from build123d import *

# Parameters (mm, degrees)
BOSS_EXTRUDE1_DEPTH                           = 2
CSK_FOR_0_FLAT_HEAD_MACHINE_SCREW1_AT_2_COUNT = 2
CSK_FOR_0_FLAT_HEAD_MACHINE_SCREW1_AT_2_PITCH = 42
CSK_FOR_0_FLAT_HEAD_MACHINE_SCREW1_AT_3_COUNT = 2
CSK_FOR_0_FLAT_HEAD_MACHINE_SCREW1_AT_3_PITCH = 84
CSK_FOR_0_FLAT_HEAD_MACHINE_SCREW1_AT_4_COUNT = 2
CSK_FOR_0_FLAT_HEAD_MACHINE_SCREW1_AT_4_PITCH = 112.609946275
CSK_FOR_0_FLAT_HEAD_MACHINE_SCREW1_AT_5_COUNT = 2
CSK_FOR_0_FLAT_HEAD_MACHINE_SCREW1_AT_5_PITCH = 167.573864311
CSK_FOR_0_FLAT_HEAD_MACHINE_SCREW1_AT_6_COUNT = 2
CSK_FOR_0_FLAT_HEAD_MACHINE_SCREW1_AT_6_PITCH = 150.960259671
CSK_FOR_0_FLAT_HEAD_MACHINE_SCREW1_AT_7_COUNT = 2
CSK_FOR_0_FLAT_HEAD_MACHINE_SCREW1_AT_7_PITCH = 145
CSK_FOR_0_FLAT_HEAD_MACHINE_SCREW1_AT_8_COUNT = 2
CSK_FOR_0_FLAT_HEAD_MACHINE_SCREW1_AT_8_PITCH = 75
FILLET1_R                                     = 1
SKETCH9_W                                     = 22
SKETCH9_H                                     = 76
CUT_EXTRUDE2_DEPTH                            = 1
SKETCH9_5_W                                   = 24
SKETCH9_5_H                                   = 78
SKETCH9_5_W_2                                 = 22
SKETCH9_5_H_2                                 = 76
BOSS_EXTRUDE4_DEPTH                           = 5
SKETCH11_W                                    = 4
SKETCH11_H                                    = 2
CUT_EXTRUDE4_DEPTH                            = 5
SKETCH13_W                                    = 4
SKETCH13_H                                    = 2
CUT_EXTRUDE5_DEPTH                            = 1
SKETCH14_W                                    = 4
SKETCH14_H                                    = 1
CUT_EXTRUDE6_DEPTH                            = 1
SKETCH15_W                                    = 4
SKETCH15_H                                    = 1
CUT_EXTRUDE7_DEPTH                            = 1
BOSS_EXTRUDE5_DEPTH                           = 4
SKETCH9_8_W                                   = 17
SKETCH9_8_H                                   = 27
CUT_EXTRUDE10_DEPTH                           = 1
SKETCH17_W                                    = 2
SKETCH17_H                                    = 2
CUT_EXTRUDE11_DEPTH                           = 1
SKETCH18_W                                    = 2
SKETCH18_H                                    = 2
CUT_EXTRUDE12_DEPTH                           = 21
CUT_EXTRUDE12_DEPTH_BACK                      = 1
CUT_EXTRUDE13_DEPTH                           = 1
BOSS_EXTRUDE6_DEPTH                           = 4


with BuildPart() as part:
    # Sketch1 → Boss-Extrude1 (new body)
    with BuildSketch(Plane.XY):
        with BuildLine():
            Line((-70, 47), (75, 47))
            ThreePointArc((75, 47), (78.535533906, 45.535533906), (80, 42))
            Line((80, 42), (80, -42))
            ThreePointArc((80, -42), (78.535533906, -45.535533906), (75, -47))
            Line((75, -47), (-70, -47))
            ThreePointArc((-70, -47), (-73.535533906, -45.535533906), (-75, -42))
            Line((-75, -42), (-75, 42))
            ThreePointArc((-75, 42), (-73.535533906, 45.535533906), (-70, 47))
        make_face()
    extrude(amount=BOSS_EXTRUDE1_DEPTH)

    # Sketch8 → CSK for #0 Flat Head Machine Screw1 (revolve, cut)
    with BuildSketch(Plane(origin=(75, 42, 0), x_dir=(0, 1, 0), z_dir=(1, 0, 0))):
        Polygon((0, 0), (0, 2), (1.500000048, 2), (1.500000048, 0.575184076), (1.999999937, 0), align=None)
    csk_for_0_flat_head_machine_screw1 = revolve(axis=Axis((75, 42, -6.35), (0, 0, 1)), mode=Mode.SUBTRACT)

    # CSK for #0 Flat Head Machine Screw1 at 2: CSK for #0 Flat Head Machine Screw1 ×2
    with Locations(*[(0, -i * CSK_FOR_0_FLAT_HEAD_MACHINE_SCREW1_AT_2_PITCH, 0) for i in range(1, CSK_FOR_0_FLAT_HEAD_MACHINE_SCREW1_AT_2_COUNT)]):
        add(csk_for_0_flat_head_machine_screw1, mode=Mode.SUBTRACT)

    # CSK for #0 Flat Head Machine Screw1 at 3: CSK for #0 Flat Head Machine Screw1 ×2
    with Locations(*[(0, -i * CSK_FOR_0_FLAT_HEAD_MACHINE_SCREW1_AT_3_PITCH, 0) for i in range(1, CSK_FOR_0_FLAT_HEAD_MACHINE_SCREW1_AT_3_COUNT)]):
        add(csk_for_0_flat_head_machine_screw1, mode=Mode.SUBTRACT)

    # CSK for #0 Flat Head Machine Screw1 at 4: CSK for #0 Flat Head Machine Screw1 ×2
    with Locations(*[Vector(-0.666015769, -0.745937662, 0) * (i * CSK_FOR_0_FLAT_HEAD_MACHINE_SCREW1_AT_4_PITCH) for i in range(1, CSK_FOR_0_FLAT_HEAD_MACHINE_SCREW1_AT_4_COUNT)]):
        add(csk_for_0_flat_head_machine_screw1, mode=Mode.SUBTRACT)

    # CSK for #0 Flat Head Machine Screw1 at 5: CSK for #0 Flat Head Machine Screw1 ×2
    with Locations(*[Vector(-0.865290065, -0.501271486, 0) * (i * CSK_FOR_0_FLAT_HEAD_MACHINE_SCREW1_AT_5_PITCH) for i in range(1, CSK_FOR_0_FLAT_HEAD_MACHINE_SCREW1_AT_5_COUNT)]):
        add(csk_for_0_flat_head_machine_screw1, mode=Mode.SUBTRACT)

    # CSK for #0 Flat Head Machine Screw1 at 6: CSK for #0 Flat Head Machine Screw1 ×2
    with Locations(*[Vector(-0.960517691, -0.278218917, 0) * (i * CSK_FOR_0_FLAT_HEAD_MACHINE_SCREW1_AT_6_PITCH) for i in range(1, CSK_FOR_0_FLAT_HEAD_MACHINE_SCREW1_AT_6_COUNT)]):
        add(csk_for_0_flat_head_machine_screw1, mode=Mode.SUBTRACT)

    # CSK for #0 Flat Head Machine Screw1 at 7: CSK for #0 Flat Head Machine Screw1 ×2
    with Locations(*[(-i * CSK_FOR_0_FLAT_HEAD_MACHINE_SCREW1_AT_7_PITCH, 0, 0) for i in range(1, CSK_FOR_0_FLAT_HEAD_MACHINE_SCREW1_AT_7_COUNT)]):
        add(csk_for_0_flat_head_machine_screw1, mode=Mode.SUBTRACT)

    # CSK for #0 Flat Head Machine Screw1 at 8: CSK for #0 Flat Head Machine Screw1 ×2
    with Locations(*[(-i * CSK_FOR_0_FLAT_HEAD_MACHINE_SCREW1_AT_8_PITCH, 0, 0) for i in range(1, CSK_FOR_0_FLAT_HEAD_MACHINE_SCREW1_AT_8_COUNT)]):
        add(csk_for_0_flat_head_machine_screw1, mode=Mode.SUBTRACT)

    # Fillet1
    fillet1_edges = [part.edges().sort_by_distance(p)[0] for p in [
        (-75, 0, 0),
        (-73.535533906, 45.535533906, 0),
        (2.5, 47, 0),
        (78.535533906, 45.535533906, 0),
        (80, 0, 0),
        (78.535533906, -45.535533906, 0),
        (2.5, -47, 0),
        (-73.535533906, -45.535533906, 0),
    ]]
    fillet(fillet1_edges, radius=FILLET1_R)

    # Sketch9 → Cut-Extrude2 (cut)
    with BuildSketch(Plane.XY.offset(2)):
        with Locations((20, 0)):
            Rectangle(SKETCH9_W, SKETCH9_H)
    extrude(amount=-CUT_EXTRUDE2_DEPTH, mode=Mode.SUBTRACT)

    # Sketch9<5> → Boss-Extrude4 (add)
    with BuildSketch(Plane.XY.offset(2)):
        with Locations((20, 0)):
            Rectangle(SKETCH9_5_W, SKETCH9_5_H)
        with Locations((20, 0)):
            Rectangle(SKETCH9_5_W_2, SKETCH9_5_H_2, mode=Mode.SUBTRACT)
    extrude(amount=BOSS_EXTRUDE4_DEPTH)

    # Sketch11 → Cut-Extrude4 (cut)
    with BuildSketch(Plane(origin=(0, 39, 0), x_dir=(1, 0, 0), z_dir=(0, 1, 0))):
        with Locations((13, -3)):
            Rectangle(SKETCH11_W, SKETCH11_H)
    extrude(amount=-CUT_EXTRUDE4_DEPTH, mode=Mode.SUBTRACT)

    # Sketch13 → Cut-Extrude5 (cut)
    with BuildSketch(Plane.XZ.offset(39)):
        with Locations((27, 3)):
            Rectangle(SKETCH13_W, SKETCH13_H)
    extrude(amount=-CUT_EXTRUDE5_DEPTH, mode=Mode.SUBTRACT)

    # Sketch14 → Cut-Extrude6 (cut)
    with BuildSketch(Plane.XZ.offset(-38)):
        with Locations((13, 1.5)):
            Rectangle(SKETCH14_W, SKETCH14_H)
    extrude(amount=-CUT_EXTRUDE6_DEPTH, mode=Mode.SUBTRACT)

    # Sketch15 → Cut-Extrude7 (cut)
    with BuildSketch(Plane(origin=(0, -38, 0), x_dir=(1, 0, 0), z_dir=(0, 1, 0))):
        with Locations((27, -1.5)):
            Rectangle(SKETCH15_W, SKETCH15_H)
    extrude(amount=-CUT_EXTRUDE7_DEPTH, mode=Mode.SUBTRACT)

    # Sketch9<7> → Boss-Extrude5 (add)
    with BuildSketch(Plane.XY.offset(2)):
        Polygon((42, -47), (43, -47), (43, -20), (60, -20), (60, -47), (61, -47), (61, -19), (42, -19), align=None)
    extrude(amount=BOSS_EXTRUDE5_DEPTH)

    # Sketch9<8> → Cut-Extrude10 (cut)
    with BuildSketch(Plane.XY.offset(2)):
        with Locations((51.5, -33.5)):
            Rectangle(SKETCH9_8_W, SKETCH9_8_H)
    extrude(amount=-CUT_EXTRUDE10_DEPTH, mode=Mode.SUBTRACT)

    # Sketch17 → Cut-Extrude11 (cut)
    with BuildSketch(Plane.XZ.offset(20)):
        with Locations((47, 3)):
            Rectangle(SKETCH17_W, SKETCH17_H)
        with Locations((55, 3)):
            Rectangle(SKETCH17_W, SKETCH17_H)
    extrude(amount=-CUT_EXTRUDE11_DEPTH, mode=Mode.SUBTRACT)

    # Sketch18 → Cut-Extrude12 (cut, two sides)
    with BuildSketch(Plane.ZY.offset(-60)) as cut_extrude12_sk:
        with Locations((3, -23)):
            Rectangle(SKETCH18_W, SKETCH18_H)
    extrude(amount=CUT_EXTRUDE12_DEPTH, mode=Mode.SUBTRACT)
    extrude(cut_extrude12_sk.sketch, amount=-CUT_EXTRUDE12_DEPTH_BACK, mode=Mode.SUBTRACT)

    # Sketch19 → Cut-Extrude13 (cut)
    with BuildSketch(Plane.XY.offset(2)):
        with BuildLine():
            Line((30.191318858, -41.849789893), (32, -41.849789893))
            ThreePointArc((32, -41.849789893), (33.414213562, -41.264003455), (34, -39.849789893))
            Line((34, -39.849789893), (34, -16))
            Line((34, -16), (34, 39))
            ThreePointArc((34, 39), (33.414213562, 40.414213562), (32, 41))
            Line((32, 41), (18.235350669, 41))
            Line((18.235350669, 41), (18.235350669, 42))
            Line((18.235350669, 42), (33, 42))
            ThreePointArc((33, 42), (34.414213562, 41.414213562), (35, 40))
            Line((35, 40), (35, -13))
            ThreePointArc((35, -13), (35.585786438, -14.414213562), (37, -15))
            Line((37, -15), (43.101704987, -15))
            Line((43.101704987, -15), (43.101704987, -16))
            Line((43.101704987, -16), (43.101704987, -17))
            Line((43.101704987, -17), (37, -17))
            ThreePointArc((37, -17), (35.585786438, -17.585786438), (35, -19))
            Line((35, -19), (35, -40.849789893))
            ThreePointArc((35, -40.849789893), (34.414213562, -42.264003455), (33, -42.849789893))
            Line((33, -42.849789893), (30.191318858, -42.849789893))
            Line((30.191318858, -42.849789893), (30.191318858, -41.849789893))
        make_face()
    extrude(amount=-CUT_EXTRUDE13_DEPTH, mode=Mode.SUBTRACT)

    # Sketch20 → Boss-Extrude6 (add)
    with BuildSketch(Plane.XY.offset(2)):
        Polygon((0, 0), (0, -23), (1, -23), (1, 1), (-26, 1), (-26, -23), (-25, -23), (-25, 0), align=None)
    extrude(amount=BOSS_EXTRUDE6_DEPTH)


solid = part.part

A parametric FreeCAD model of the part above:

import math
import FreeCAD as App
import Part
import Sketcher

V = App.Vector
Q = App.Units.Quantity


def edges_at(feature, points):
    """Names of the edges that pass closest to the given points."""
    edges = feature.Shape.Edges
    near = lambda p: min(range(len(edges)), key=lambda i: edges[i].distToShape(Part.Vertex(*p))[0])
    return sorted({f"Edge{near(p) + 1}" for p in points})

doc = App.newDocument("Part")
params = doc.addObject("Spreadsheet::Sheet", "Params")
for row, (alias, value) in enumerate([
    ("sketch1_radius", "5 mm"),
    ("sketch1_width", "145 mm"),
    ("sketch1_height", "84 mm"),
    ("pad1_length", "2 mm"),
    ("sketch2_width", "2 mm"),
    ("sketch2_width2", "1.5 mm"),
    ("groove_angle", "360 deg"),
    ("linearpattern_pitch", "42 mm"),
    ("linearpattern2_pitch", "84 mm"),
    ("linearpattern3_pitch", "112.609946 mm"),
    ("linearpattern4_pitch", "167.573864 mm"),
    ("linearpattern5_pitch", "150.96026 mm"),
    ("linearpattern6_pitch", "145 mm"),
    ("linearpattern7_pitch", "75 mm"),
    ("fillet_radius", "1 mm"),
    ("sketch3_width", "22 mm"),
    ("sketch3_height", "76 mm"),
    ("pocket1_length", "1 mm"),
    ("sketch4_width", "24 mm"),
    ("sketch4_width2", "22 mm"),
    ("sketch4_height", "78 mm"),
    ("sketch4_height2", "76 mm"),
    ("pad2_length", "5 mm"),
    ("sketch5_width", "4 mm"),
    ("sketch5_height", "2 mm"),
    ("pocket2_length", "5 mm"),
    ("sketch6_width", "4 mm"),
    ("sketch6_height", "2 mm"),
    ("pocket3_length", "1 mm"),
    ("sketch7_width", "4 mm"),
    ("sketch7_height", "1 mm"),
    ("pocket4_length", "1 mm"),
    ("sketch8_width", "4 mm"),
    ("sketch8_height", "1 mm"),
    ("pocket5_length", "1 mm"),
    ("sketch9_width", "1 mm"),
    ("sketch9_width2", "17 mm"),
    ("sketch9_height", "27 mm"),
    ("sketch9_height2", "28 mm"),
    ("pad3_length", "4 mm"),
    ("sketch10_width", "17 mm"),
    ("sketch10_height", "27 mm"),
    ("pocket6_length", "1 mm"),
    ("sketch11_width", "2 mm"),
    ("pocket7_length", "1 mm"),
    ("sketch12_width", "2 mm"),
    ("pocket8_length", "21 mm"),
    ("pocket8_length2", "1 mm"),
    ("sketch13_radius", "2 mm"),
    ("sketch13_height", "1 mm"),
    ("sketch13_height2", "2 mm"),
    ("sketch13_height3", "53 mm"),
    ("pocket9_length", "1 mm"),
    ("sketch14_width", "1 mm"),
    ("sketch14_width2", "27 mm"),
    ("sketch14_height", "23 mm"),
    ("sketch14_height2", "24 mm"),
    ("pad4_length", "4 mm"),
], start=1):
    params.set(f"A{row}", alias)
    params.set(f"B{row}", "=" + value)
    params.setAlias(f"B{row}", alias)

body = doc.addObject("PartDesign::Body", "Body")

# Sketch on XY plane
sketch1 = body.newObject("Sketcher::SketchObject", "Sketch")
sketch1.AttachmentSupport = (doc.getObject("XY_Plane"), [""])
sketch1.MapMode = "FlatFace"
sketch1.addGeometry([
    Part.LineSegment(V(75, 47, 0), V(-70, 47, 0)),  # 0
    Part.ArcOfCircle(Part.Circle(V(-70, 42, 0), V(0, 0, 1), 5), math.radians(90), math.radians(180)),  # 1
    Part.LineSegment(V(-75, 42, 0), V(-75, -42, 0)),  # 2
    Part.ArcOfCircle(Part.Circle(V(-70, -42, 0), V(0, 0, 1), 5), math.radians(180), math.radians(270)),  # 3
    Part.LineSegment(V(-70, -47, 0), V(75, -47, 0)),  # 4
    Part.ArcOfCircle(Part.Circle(V(75, -42, 0), V(0, 0, 1), 5), math.radians(-90), math.radians(0)),  # 5
    Part.LineSegment(V(80, -42, 0), V(80, 42, 0)),  # 6
    Part.ArcOfCircle(Part.Circle(V(75, 42, 0), V(0, 0, 1), 5), math.radians(0), math.radians(90)),  # 7
], False)
sketch1.addConstraint([
    Sketcher.Constraint("Tangent", 0, 2, 1, 1),
    Sketcher.Constraint("Tangent", 1, 2, 2, 1),
    Sketcher.Constraint("Tangent", 2, 2, 3, 1),
    Sketcher.Constraint("Tangent", 3, 2, 4, 1),
    Sketcher.Constraint("Tangent", 4, 2, 5, 1),
    Sketcher.Constraint("Tangent", 5, 2, 6, 1),
    Sketcher.Constraint("Tangent", 6, 2, 7, 1),
    Sketcher.Constraint("Tangent", 7, 2, 0, 1),
    Sketcher.Constraint("Horizontal", 0),
    Sketcher.Constraint("Vertical", 2),
    Sketcher.Constraint("Horizontal", 4),
    Sketcher.Constraint("Vertical", 6),
    Sketcher.Constraint("Equal", 1, 3),
    Sketcher.Constraint("Equal", 3, 5),
    Sketcher.Constraint("Equal", 5, 7),
    Sketcher.Constraint("Radius", 1, 5.0),
    Sketcher.Constraint("DistanceX", 0, 2, 0, 1, 145.0),
    Sketcher.Constraint("DistanceY", 2, 2, 2, 1, 84.0),
    Sketcher.Constraint("DistanceX", 1, 3, -1, 1, 70.0),
    Sketcher.Constraint("DistanceY", -1, 1, 1, 3, 42.0),
])
sketch1.setExpression("Constraints[15]", "Params.sketch1_radius")
sketch1.setExpression("Constraints[16]", "Params.sketch1_width")
sketch1.setExpression("Constraints[17]", "Params.sketch1_height")
pad1 = body.newObject("PartDesign::Pad", "Pad")
pad1.Profile = sketch1
pad1.setExpression("Length", "Params.pad1_length")

# Sketch on YZ plane
sketch2 = body.newObject("Sketcher::SketchObject", "Sketch001")
sketch2.AttachmentSupport = (doc.getObject("YZ_Plane"), [""])
sketch2.MapMode = "FlatFace"
sketch2.AttachmentOffset = App.Placement(V(0, 0, 75), App.Rotation())
sketch2.addGeometry([
    Part.LineSegment(V(42, 2, 0), V(42, 0, 0)),  # 0
    Part.LineSegment(V(42, 0, 0), V(44, 0, 0)),  # 1
    Part.LineSegment(V(44, 0, 0), V(43.5, 0.6, 0)),  # 2
    Part.LineSegment(V(43.5, 0.6, 0), V(43.5, 2, 0)),  # 3
    Part.LineSegment(V(43.5, 2, 0), V(42, 2, 0)),  # 4
], False)
sketch2.addGeometry(Part.LineSegment(V(42, 0, 0), V(42, 2, 0)), True)  # axis
sketch2.addConstraint([
    Sketcher.Constraint("Coincident", 0, 2, 1, 1),
    Sketcher.Constraint("Coincident", 1, 2, 2, 1),
    Sketcher.Constraint("Coincident", 2, 2, 3, 1),
    Sketcher.Constraint("Coincident", 3, 2, 4, 1),
    Sketcher.Constraint("Coincident", 4, 2, 0, 1),
    Sketcher.Constraint("Vertical", 0),
    Sketcher.Constraint("Horizontal", 1),
    Sketcher.Constraint("Vertical", 3),
    Sketcher.Constraint("Horizontal", 4),
    Sketcher.Constraint("Vertical", 5),
    Sketcher.Constraint("Coincident", 5, 1, 0, 2),
    Sketcher.Constraint("PointOnObject", 0, 2, -1),
    Sketcher.Constraint("Horizontal", 3, 2, 5, 2),
    Sketcher.Constraint("Equal", 1, 0),
    Sketcher.Constraint("DistanceX", 1, 1, 1, 2, 2.0),
    Sketcher.Constraint("Angle", 2, Q("131 deg")),
    Sketcher.Constraint("DistanceX", 4, 2, 4, 1, 1.5),
    Sketcher.Constraint("DistanceX", -1, 1, 0, 2, 42.0),
])
sketch2.setExpression("Constraints[14]", "Params.sketch2_width")
sketch2.setExpression("Constraints[16]", "Params.sketch2_width2")
groove = body.newObject("PartDesign::Groove", "Groove")
groove.Profile = sketch2
groove.ReferenceAxis = (sketch2, ["Axis0"])
groove.setExpression("Angle", "Params.groove_angle")
doc.recompute()

linearpattern = body.newObject("PartDesign::LinearPattern", "LinearPattern")
linearpattern.Originals = [groove]
linearpattern.Direction = (doc.getObject("Y_Axis"), [""])
linearpattern.Mode = "offset"
linearpattern.setExpression("Offset", "Params.linearpattern_pitch")
linearpattern.Occurrences = 2
linearpattern.Reversed = True
body.Tip = linearpattern
doc.recompute()

linearpattern2 = body.newObject("PartDesign::LinearPattern", "LinearPattern001")
linearpattern2.Originals = [groove]
linearpattern2.Direction = (doc.getObject("Y_Axis"), [""])
linearpattern2.Mode = "offset"
linearpattern2.setExpression("Offset", "Params.linearpattern2_pitch")
linearpattern2.Occurrences = 2
linearpattern2.Reversed = True
body.Tip = linearpattern2
doc.recompute()

datumline = body.newObject("PartDesign::Line", "DatumLine")
datumline.Placement = App.Placement(V(0, 0, 0), App.Rotation(V(0, 0, 1), V(-0.666015769, -0.745937662, 0)))
linearpattern3 = body.newObject("PartDesign::LinearPattern", "LinearPattern002")
linearpattern3.Originals = [groove]
linearpattern3.Direction = (datumline, [""])
linearpattern3.Mode = "offset"
linearpattern3.setExpression("Offset", "Params.linearpattern3_pitch")
linearpattern3.Occurrences = 2
body.Tip = linearpattern3
doc.recompute()

datumline2 = body.newObject("PartDesign::Line", "DatumLine001")
datumline2.Placement = App.Placement(V(0, 0, 0), App.Rotation(V(0, 0, 1), V(-0.865290065, -0.501271486, 0)))
linearpattern4 = body.newObject("PartDesign::LinearPattern", "LinearPattern003")
linearpattern4.Originals = [groove]
linearpattern4.Direction = (datumline2, [""])
linearpattern4.Mode = "offset"
linearpattern4.setExpression("Offset", "Params.linearpattern4_pitch")
linearpattern4.Occurrences = 2
body.Tip = linearpattern4
doc.recompute()

datumline3 = body.newObject("PartDesign::Line", "DatumLine002")
datumline3.Placement = App.Placement(V(0, 0, 0), App.Rotation(V(0, 0, 1), V(-0.960517691, -0.278218917, 0)))
linearpattern5 = body.newObject("PartDesign::LinearPattern", "LinearPattern004")
linearpattern5.Originals = [groove]
linearpattern5.Direction = (datumline3, [""])
linearpattern5.Mode = "offset"
linearpattern5.setExpression("Offset", "Params.linearpattern5_pitch")
linearpattern5.Occurrences = 2
body.Tip = linearpattern5
doc.recompute()

linearpattern6 = body.newObject("PartDesign::LinearPattern", "LinearPattern005")
linearpattern6.Originals = [groove]
linearpattern6.Direction = (doc.getObject("X_Axis"), [""])
linearpattern6.Mode = "offset"
linearpattern6.setExpression("Offset", "Params.linearpattern6_pitch")
linearpattern6.Occurrences = 2
linearpattern6.Reversed = True
body.Tip = linearpattern6
doc.recompute()

linearpattern7 = body.newObject("PartDesign::LinearPattern", "LinearPattern006")
linearpattern7.Originals = [groove]
linearpattern7.Direction = (doc.getObject("X_Axis"), [""])
linearpattern7.Mode = "offset"
linearpattern7.setExpression("Offset", "Params.linearpattern7_pitch")
linearpattern7.Occurrences = 2
linearpattern7.Reversed = True
body.Tip = linearpattern7
doc.recompute()

fillet = body.newObject("PartDesign::Fillet", "Fillet")
fillet.Base = (linearpattern7, edges_at(linearpattern7, [
    (-75, 0, 0),
    (-73.536, 45.536, 0),
    (2.5, 47, 0),
    (78.536, 45.536, 0),
    (80, 0, 0),
    (78.536, -45.536, 0),
    (2.5, -47, 0),
    (-73.536, -45.536, 0),
]))
fillet.setExpression("Radius", "Params.fillet_radius")

# Sketch on XY plane
sketch3 = body.newObject("Sketcher::SketchObject", "Sketch002")
sketch3.AttachmentSupport = (doc.getObject("XY_Plane"), [""])
sketch3.MapMode = "FlatFace"
sketch3.AttachmentOffset = App.Placement(V(0, 0, 2), App.Rotation())
sketch3.addGeometry([
    Part.LineSegment(V(9, 38, 0), V(9, -38, 0)),
    Part.LineSegment(V(9, -38, 0), V(31, -38, 0)),
    Part.LineSegment(V(31, -38, 0), V(31, 38, 0)),
    Part.LineSegment(V(31, 38, 0), V(9, 38, 0)),
], False)
sketch3.addConstraint([
    Sketcher.Constraint("Coincident", 0, 2, 1, 1),
    Sketcher.Constraint("Coincident", 1, 2, 2, 1),
    Sketcher.Constraint("Coincident", 2, 2, 3, 1),
    Sketcher.Constraint("Coincident", 3, 2, 0, 1),
    Sketcher.Constraint("Vertical", 0),
    Sketcher.Constraint("Horizontal", 1),
    Sketcher.Constraint("Vertical", 2),
    Sketcher.Constraint("Horizontal", 3),
    Sketcher.Constraint("DistanceX", 1, 1, 1, 2, 22.0),
    Sketcher.Constraint("DistanceY", 0, 2, 0, 1, 76.0),
    Sketcher.Constraint("DistanceX", -1, 1, 0, 2, 9.0),
    Sketcher.Constraint("DistanceY", 0, 2, -1, 1, 38.0),
])
sketch3.setExpression("Constraints[8]", "Params.sketch3_width")
sketch3.setExpression("Constraints[9]", "Params.sketch3_height")
pocket1 = body.newObject("PartDesign::Pocket", "Pocket")
pocket1.Profile = sketch3
pocket1.setExpression("Length", "Params.pocket1_length")

# Sketch on XY plane
sketch4 = body.newObject("Sketcher::SketchObject", "Sketch003")
sketch4.AttachmentSupport = (doc.getObject("XY_Plane"), [""])
sketch4.MapMode = "FlatFace"
sketch4.AttachmentOffset = App.Placement(V(0, 0, 2), App.Rotation())
sketch4.addGeometry([
    Part.LineSegment(V(8, 39, 0), V(8, -39, 0)),  # 0
    Part.LineSegment(V(8, -39, 0), V(32, -39, 0)),  # 1
    Part.LineSegment(V(32, -39, 0), V(32, 39, 0)),  # 2
    Part.LineSegment(V(32, 39, 0), V(8, 39, 0)),  # 3
    Part.LineSegment(V(31, -38, 0), V(9, -38, 0)),  # 4
    Part.LineSegment(V(9, -38, 0), V(9, 38, 0)),  # 5
    Part.LineSegment(V(9, 38, 0), V(31, 38, 0)),  # 6
    Part.LineSegment(V(31, 38, 0), V(31, -38, 0)),  # 7
], False)
sketch4.addConstraint([
    Sketcher.Constraint("Coincident", 0, 2, 1, 1),
    Sketcher.Constraint("Coincident", 1, 2, 2, 1),
    Sketcher.Constraint("Coincident", 2, 2, 3, 1),
    Sketcher.Constraint("Coincident", 3, 2, 0, 1),
    Sketcher.Constraint("Coincident", 4, 2, 5, 1),
    Sketcher.Constraint("Coincident", 5, 2, 6, 1),
    Sketcher.Constraint("Coincident", 6, 2, 7, 1),
    Sketcher.Constraint("Coincident", 7, 2, 4, 1),
    Sketcher.Constraint("Vertical", 0),
    Sketcher.Constraint("Horizontal", 1),
    Sketcher.Constraint("Vertical", 2),
    Sketcher.Constraint("Horizontal", 3),
    Sketcher.Constraint("Horizontal", 4),
    Sketcher.Constraint("Vertical", 5),
    Sketcher.Constraint("Horizontal", 6),
    Sketcher.Constraint("Vertical", 7),
    Sketcher.Constraint("DistanceX", 1, 1, 1, 2, 24.0),
    Sketcher.Constraint("DistanceX", 4, 2, 4, 1, 22.0),
    Sketcher.Constraint("DistanceY", 0, 2, 0, 1, 78.0),
    Sketcher.Constraint("DistanceY", 5, 1, 5, 2, 76.0),
    Sketcher.Constraint("DistanceX", -1, 1, 0, 2, 8.0),
    Sketcher.Constraint("DistanceY", 0, 2, -1, 1, 39.0),
    Sketcher.Constraint("DistanceX", -1, 1, 4, 2, 9.0),
    Sketcher.Constraint("DistanceY", 4, 2, -1, 1, 38.0),
])
sketch4.setExpression("Constraints[16]", "Params.sketch4_width")
sketch4.setExpression("Constraints[17]", "Params.sketch4_width2")
sketch4.setExpression("Constraints[18]", "Params.sketch4_height")
sketch4.setExpression("Constraints[19]", "Params.sketch4_height2")
pad2 = body.newObject("PartDesign::Pad", "Pad001")
pad2.Profile = sketch4
pad2.setExpression("Length", "Params.pad2_length")

# Sketch on XZ plane
sketch5 = body.newObject("Sketcher::SketchObject", "Sketch004")
sketch5.AttachmentSupport = (doc.getObject("XZ_Plane"), [""])
sketch5.MapMode = "FlatFace"
sketch5.AttachmentOffset = App.Placement(V(0, 0, -39), App.Rotation())
sketch5.addGeometry([
    Part.LineSegment(V(11, 2, 0), V(11, 4, 0)),
    Part.LineSegment(V(11, 4, 0), V(15, 4, 0)),
    Part.LineSegment(V(15, 4, 0), V(15, 2, 0)),
    Part.LineSegment(V(15, 2, 0), V(11, 2, 0)),
], False)
sketch5.addConstraint([
    Sketcher.Constraint("Coincident", 0, 2, 1, 1),
    Sketcher.Constraint("Coincident", 1, 2, 2, 1),
    Sketcher.Constraint("Coincident", 2, 2, 3, 1),
    Sketcher.Constraint("Coincident", 3, 2, 0, 1),
    Sketcher.Constraint("Vertical", 0),
    Sketcher.Constraint("Horizontal", 1),
    Sketcher.Constraint("Vertical", 2),
    Sketcher.Constraint("Horizontal", 3),
    Sketcher.Constraint("DistanceX", 1, 1, 1, 2, 4.0),
    Sketcher.Constraint("DistanceY", 0, 1, 0, 2, 2.0),
    Sketcher.Constraint("DistanceX", -1, 1, 0, 2, 11.0),
    Sketcher.Constraint("DistanceY", -1, 1, 0, 2, 4.0),
])
sketch5.setExpression("Constraints[8]", "Params.sketch5_width")
sketch5.setExpression("Constraints[9]", "Params.sketch5_height")
pocket2 = body.newObject("PartDesign::Pocket", "Pocket001")
pocket2.Profile = sketch5
pocket2.setExpression("Length", "Params.pocket2_length")
pocket2.Reversed = True

# Sketch on XZ plane
sketch6 = body.newObject("Sketcher::SketchObject", "Sketch005")
sketch6.AttachmentSupport = (doc.getObject("XZ_Plane"), [""])
sketch6.MapMode = "FlatFace"
sketch6.AttachmentOffset = App.Placement(V(0, 0, 39), App.Rotation())
sketch6.addGeometry([
    Part.LineSegment(V(25, 4, 0), V(25, 2, 0)),
    Part.LineSegment(V(25, 2, 0), V(29, 2, 0)),
    Part.LineSegment(V(29, 2, 0), V(29, 4, 0)),
    Part.LineSegment(V(29, 4, 0), V(25, 4, 0)),
], False)
sketch6.addConstraint([
    Sketcher.Constraint("Coincident", 0, 2, 1, 1),
    Sketcher.Constraint("Coincident", 1, 2, 2, 1),
    Sketcher.Constraint("Coincident", 2, 2, 3, 1),
    Sketcher.Constraint("Coincident", 3, 2, 0, 1),
    Sketcher.Constraint("Vertical", 0),
    Sketcher.Constraint("Horizontal", 1),
    Sketcher.Constraint("Vertical", 2),
    Sketcher.Constraint("Horizontal", 3),
    Sketcher.Constraint("DistanceX", 1, 1, 1, 2, 4.0),
    Sketcher.Constraint("DistanceY", 0, 2, 0, 1, 2.0),
    Sketcher.Constraint("DistanceX", -1, 1, 0, 2, 25.0),
    Sketcher.Constraint("DistanceY", -1, 1, 0, 2, 2.0),
])
sketch6.setExpression("Constraints[8]", "Params.sketch6_width")
sketch6.setExpression("Constraints[9]", "Params.sketch6_height")
pocket3 = body.newObject("PartDesign::Pocket", "Pocket002")
pocket3.Profile = sketch6
pocket3.setExpression("Length", "Params.pocket3_length")

# Sketch on XZ plane
sketch7 = body.newObject("Sketcher::SketchObject", "Sketch006")
sketch7.AttachmentSupport = (doc.getObject("XZ_Plane"), [""])
sketch7.MapMode = "FlatFace"
sketch7.AttachmentOffset = App.Placement(V(0, 0, -38), App.Rotation())
sketch7.addGeometry([
    Part.LineSegment(V(11, 2, 0), V(11, 1, 0)),
    Part.LineSegment(V(11, 1, 0), V(15, 1, 0)),
    Part.LineSegment(V(15, 1, 0), V(15, 2, 0)),
    Part.LineSegment(V(15, 2, 0), V(11, 2, 0)),
], False)
sketch7.addConstraint([
    Sketcher.Constraint("Coincident", 0, 2, 1, 1),
    Sketcher.Constraint("Coincident", 1, 2, 2, 1),
    Sketcher.Constraint("Coincident", 2, 2, 3, 1),
    Sketcher.Constraint("Coincident", 3, 2, 0, 1),
    Sketcher.Constraint("Vertical", 0),
    Sketcher.Constraint("Horizontal", 1),
    Sketcher.Constraint("Vertical", 2),
    Sketcher.Constraint("Horizontal", 3),
    Sketcher.Constraint("DistanceX", 1, 1, 1, 2, 4.0),
    Sketcher.Constraint("DistanceY", 0, 2, 0, 1, 1.0),
    Sketcher.Constraint("DistanceX", -1, 1, 0, 2, 11.0),
    Sketcher.Constraint("DistanceY", -1, 1, 0, 2, 1.0),
])
sketch7.setExpression("Constraints[8]", "Params.sketch7_width")
sketch7.setExpression("Constraints[9]", "Params.sketch7_height")
pocket4 = body.newObject("PartDesign::Pocket", "Pocket003")
pocket4.Profile = sketch7
pocket4.setExpression("Length", "Params.pocket4_length")

# Sketch on XZ plane
sketch8 = body.newObject("Sketcher::SketchObject", "Sketch007")
sketch8.AttachmentSupport = (doc.getObject("XZ_Plane"), [""])
sketch8.MapMode = "FlatFace"
sketch8.AttachmentOffset = App.Placement(V(0, 0, 38), App.Rotation())
sketch8.addGeometry([
    Part.LineSegment(V(25, 1, 0), V(25, 2, 0)),
    Part.LineSegment(V(25, 2, 0), V(29, 2, 0)),
    Part.LineSegment(V(29, 2, 0), V(29, 1, 0)),
    Part.LineSegment(V(29, 1, 0), V(25, 1, 0)),
], False)
sketch8.addConstraint([
    Sketcher.Constraint("Coincident", 0, 2, 1, 1),
    Sketcher.Constraint("Coincident", 1, 2, 2, 1),
    Sketcher.Constraint("Coincident", 2, 2, 3, 1),
    Sketcher.Constraint("Coincident", 3, 2, 0, 1),
    Sketcher.Constraint("Vertical", 0),
    Sketcher.Constraint("Horizontal", 1),
    Sketcher.Constraint("Vertical", 2),
    Sketcher.Constraint("Horizontal", 3),
    Sketcher.Constraint("DistanceX", 1, 1, 1, 2, 4.0),
    Sketcher.Constraint("DistanceY", 0, 1, 0, 2, 1.0),
    Sketcher.Constraint("DistanceX", -1, 1, 0, 2, 25.0),
    Sketcher.Constraint("DistanceY", -1, 1, 0, 2, 2.0),
])
sketch8.setExpression("Constraints[8]", "Params.sketch8_width")
sketch8.setExpression("Constraints[9]", "Params.sketch8_height")
pocket5 = body.newObject("PartDesign::Pocket", "Pocket004")
pocket5.Profile = sketch8
pocket5.setExpression("Length", "Params.pocket5_length")
pocket5.Reversed = True

# Sketch on XY plane
sketch9 = body.newObject("Sketcher::SketchObject", "Sketch008")
sketch9.AttachmentSupport = (doc.getObject("XY_Plane"), [""])
sketch9.MapMode = "FlatFace"
sketch9.AttachmentOffset = App.Placement(V(0, 0, 2), App.Rotation())
sketch9.addGeometry([
    Part.LineSegment(V(42, -47, 0), V(43, -47, 0)),  # 0
    Part.LineSegment(V(43, -47, 0), V(43, -20, 0)),  # 1
    Part.LineSegment(V(43, -20, 0), V(60, -20, 0)),  # 2
    Part.LineSegment(V(60, -20, 0), V(60, -47, 0)),  # 3
    Part.LineSegment(V(60, -47, 0), V(61, -47, 0)),  # 4
    Part.LineSegment(V(61, -47, 0), V(61, -19, 0)),  # 5
    Part.LineSegment(V(61, -19, 0), V(42, -19, 0)),  # 6
    Part.LineSegment(V(42, -19, 0), V(42, -47, 0)),  # 7
], False)
sketch9.addConstraint([
    Sketcher.Constraint("Coincident", 0, 2, 1, 1),
    Sketcher.Constraint("Coincident", 1, 2, 2, 1),
    Sketcher.Constraint("Coincident", 2, 2, 3, 1),
    Sketcher.Constraint("Coincident", 3, 2, 4, 1),
    Sketcher.Constraint("Coincident", 4, 2, 5, 1),
    Sketcher.Constraint("Coincident", 5, 2, 6, 1),
    Sketcher.Constraint("Coincident", 6, 2, 7, 1),
    Sketcher.Constraint("Coincident", 7, 2, 0, 1),
    Sketcher.Constraint("Horizontal", 0),
    Sketcher.Constraint("Vertical", 1),
    Sketcher.Constraint("Horizontal", 2),
    Sketcher.Constraint("Vertical", 3),
    Sketcher.Constraint("Horizontal", 4),
    Sketcher.Constraint("Vertical", 5),
    Sketcher.Constraint("Horizontal", 6),
    Sketcher.Constraint("Vertical", 7),
    Sketcher.Constraint("Horizontal", 0, 2, 3, 2),
    Sketcher.Constraint("Equal", 0, 4),
    Sketcher.Constraint("DistanceX", 0, 1, 0, 2, 1.0),
    Sketcher.Constraint("DistanceX", 2, 1, 2, 2, 17.0),
    Sketcher.Constraint("DistanceY", 1, 1, 1, 2, 27.0),
    Sketcher.Constraint("DistanceY", 5, 1, 5, 2, 28.0),
    Sketcher.Constraint("DistanceX", -1, 1, 0, 2, 43.0),
    Sketcher.Constraint("DistanceY", 0, 2, -1, 1, 47.0),
])
sketch9.setExpression("Constraints[18]", "Params.sketch9_width")
sketch9.setExpression("Constraints[19]", "Params.sketch9_width2")
sketch9.setExpression("Constraints[20]", "Params.sketch9_height")
sketch9.setExpression("Constraints[21]", "Params.sketch9_height2")
pad3 = body.newObject("PartDesign::Pad", "Pad002")
pad3.Profile = sketch9
pad3.setExpression("Length", "Params.pad3_length")

# Sketch on XY plane
sketch10 = body.newObject("Sketcher::SketchObject", "Sketch009")
sketch10.AttachmentSupport = (doc.getObject("XY_Plane"), [""])
sketch10.MapMode = "FlatFace"
sketch10.AttachmentOffset = App.Placement(V(0, 0, 2), App.Rotation())
sketch10.addGeometry([
    Part.LineSegment(V(43, -20, 0), V(43, -47, 0)),
    Part.LineSegment(V(43, -47, 0), V(60, -47, 0)),
    Part.LineSegment(V(60, -47, 0), V(60, -20, 0)),
    Part.LineSegment(V(60, -20, 0), V(43, -20, 0)),
], False)
sketch10.addConstraint([
    Sketcher.Constraint("Coincident", 0, 2, 1, 1),
    Sketcher.Constraint("Coincident", 1, 2, 2, 1),
    Sketcher.Constraint("Coincident", 2, 2, 3, 1),
    Sketcher.Constraint("Coincident", 3, 2, 0, 1),
    Sketcher.Constraint("Vertical", 0),
    Sketcher.Constraint("Horizontal", 1),
    Sketcher.Constraint("Vertical", 2),
    Sketcher.Constraint("Horizontal", 3),
    Sketcher.Constraint("DistanceX", 1, 1, 1, 2, 17.0),
    Sketcher.Constraint("DistanceY", 0, 2, 0, 1, 27.0),
    Sketcher.Constraint("DistanceX", -1, 1, 0, 2, 43.0),
    Sketcher.Constraint("DistanceY", 0, 2, -1, 1, 47.0),
])
sketch10.setExpression("Constraints[8]", "Params.sketch10_width")
sketch10.setExpression("Constraints[9]", "Params.sketch10_height")
pocket6 = body.newObject("PartDesign::Pocket", "Pocket005")
pocket6.Profile = sketch10
pocket6.setExpression("Length", "Params.pocket6_length")

# Sketch on XZ plane
sketch11 = body.newObject("Sketcher::SketchObject", "Sketch010")
sketch11.AttachmentSupport = (doc.getObject("XZ_Plane"), [""])
sketch11.MapMode = "FlatFace"
sketch11.AttachmentOffset = App.Placement(V(0, 0, 20), App.Rotation())
sketch11.addGeometry([
    Part.LineSegment(V(46, 4, 0), V(46, 2, 0)),  # 0
    Part.LineSegment(V(46, 2, 0), V(48, 2, 0)),  # 1
    Part.LineSegment(V(48, 2, 0), V(48, 4, 0)),  # 2
    Part.LineSegment(V(48, 4, 0), V(46, 4, 0)),  # 3
    Part.LineSegment(V(54, 4, 0), V(54, 2, 0)),  # 4
    Part.LineSegment(V(54, 2, 0), V(56, 2, 0)),  # 5
    Part.LineSegment(V(56, 2, 0), V(56, 4, 0)),  # 6
    Part.LineSegment(V(56, 4, 0), V(54, 4, 0)),  # 7
], False)
sketch11.addConstraint([
    Sketcher.Constraint("Coincident", 0, 2, 1, 1),
    Sketcher.Constraint("Coincident", 1, 2, 2, 1),
    Sketcher.Constraint("Coincident", 2, 2, 3, 1),
    Sketcher.Constraint("Coincident", 3, 2, 0, 1),
    Sketcher.Constraint("Coincident", 4, 2, 5, 1),
    Sketcher.Constraint("Coincident", 5, 2, 6, 1),
    Sketcher.Constraint("Coincident", 6, 2, 7, 1),
    Sketcher.Constraint("Coincident", 7, 2, 4, 1),
    Sketcher.Constraint("Vertical", 0),
    Sketcher.Constraint("Horizontal", 1),
    Sketcher.Constraint("Vertical", 2),
    Sketcher.Constraint("Horizontal", 3),
    Sketcher.Constraint("Vertical", 4),
    Sketcher.Constraint("Horizontal", 5),
    Sketcher.Constraint("Vertical", 6),
    Sketcher.Constraint("Horizontal", 7),
    Sketcher.Constraint("Horizontal", 1, 2, 4, 2),
    Sketcher.Constraint("Horizontal", 3, 2, 6, 2),
    Sketcher.Constraint("Equal", 3, 5),
    Sketcher.Constraint("Equal", 7, 0),
    Sketcher.Constraint("DistanceX", 1, 1, 1, 2, 2.0),
    Sketcher.Constraint("DistanceX", -1, 1, 0, 2, 46.0),
    Sketcher.Constraint("DistanceY", -1, 1, 0, 2, 2.0),
    Sketcher.Constraint("DistanceX", -1, 1, 4, 2, 54.0),
])
sketch11.setExpression("Constraints[20]", "Params.sketch11_width")
pocket7 = body.newObject("PartDesign::Pocket", "Pocket006")
pocket7.Profile = sketch11
pocket7.setExpression("Length", "Params.pocket7_length")

# Sketch on YZ plane
sketch12 = body.newObject("Sketcher::SketchObject", "Sketch011")
sketch12.AttachmentSupport = (doc.getObject("YZ_Plane"), [""])
sketch12.MapMode = "FlatFace"
sketch12.AttachmentOffset = App.Placement(V(0, 0, 60), App.Rotation())
sketch12.addGeometry([
    Part.LineSegment(V(-22, 2, 0), V(-24, 2, 0)),
    Part.LineSegment(V(-24, 2, 0), V(-24, 4, 0)),
    Part.LineSegment(V(-24, 4, 0), V(-22, 4, 0)),
    Part.LineSegment(V(-22, 4, 0), V(-22, 2, 0)),
], False)
sketch12.addConstraint([
    Sketcher.Constraint("Coincident", 0, 2, 1, 1),
    Sketcher.Constraint("Coincident", 1, 2, 2, 1),
    Sketcher.Constraint("Coincident", 2, 2, 3, 1),
    Sketcher.Constraint("Coincident", 3, 2, 0, 1),
    Sketcher.Constraint("Horizontal", 0),
    Sketcher.Constraint("Vertical", 1),
    Sketcher.Constraint("Horizontal", 2),
    Sketcher.Constraint("Vertical", 3),
    Sketcher.Constraint("Equal", 2, 1),
    Sketcher.Constraint("DistanceX", 0, 2, 0, 1, 2.0),
    Sketcher.Constraint("DistanceX", 0, 2, -1, 1, 24.0),
    Sketcher.Constraint("DistanceY", -1, 1, 0, 2, 2.0),
])
sketch12.setExpression("Constraints[9]", "Params.sketch12_width")
pocket8 = body.newObject("PartDesign::Pocket", "Pocket007")
pocket8.Profile = sketch12
pocket8.Type = "TwoLengths"
pocket8.setExpression("Length", "Params.pocket8_length")
pocket8.setExpression("Length2", "Params.pocket8_length2")

# Sketch on XY plane
sketch13 = body.newObject("Sketcher::SketchObject", "Sketch012")
sketch13.AttachmentSupport = (doc.getObject("XY_Plane"), [""])
sketch13.MapMode = "FlatFace"
sketch13.AttachmentOffset = App.Placement(V(0, 0, 2), App.Rotation())
sketch13.addGeometry([
    Part.LineSegment(V(32, -41.8, 0), V(30.2, -41.8, 0)),  # 0
    Part.LineSegment(V(30.2, -41.8, 0), V(30.2, -42.8, 0)),  # 1
    Part.LineSegment(V(30.2, -42.8, 0), V(33, -42.8, 0)),  # 2
    Part.ArcOfCircle(Part.Circle(V(33, -40.8, 0), V(0, 0, 1), 2), math.radians(-90), math.radians(0)),  # 3
    Part.LineSegment(V(35, -40.8, 0), V(35, -19, 0)),  # 4
    Part.ArcOfCircle(Part.Circle(V(37, -19, 0), V(0, 0, 1), 2), math.radians(90), math.radians(180)),  # 5
    Part.LineSegment(V(37, -17, 0), V(43.1, -17, 0)),  # 6
    Part.LineSegment(V(43.1, -17, 0), V(43.1, -15, 0)),  # 7
    Part.LineSegment(V(43.1, -15, 0), V(37, -15, 0)),  # 8
    Part.ArcOfCircle(Part.Circle(V(37, -13, 0), V(0, 0, 1), 2), math.radians(-180), math.radians(-90)),  # 9
    Part.LineSegment(V(35, -13, 0), V(35, 40, 0)),  # 10
    Part.ArcOfCircle(Part.Circle(V(33, 40, 0), V(0, 0, 1), 2), math.radians(0), math.radians(90)),  # 11
    Part.LineSegment(V(33, 42, 0), V(18.2, 42, 0)),  # 12
    Part.LineSegment(V(18.2, 42, 0), V(18.2, 41, 0)),  # 13
    Part.LineSegment(V(18.2, 41, 0), V(32, 41, 0)),  # 14
    Part.ArcOfCircle(Part.Circle(V(32, 39, 0), V(0, 0, 1), 2), math.radians(0), math.radians(90)),  # 15
    Part.LineSegment(V(34, 39, 0), V(34, -39.8, 0)),  # 16
    Part.ArcOfCircle(Part.Circle(V(32, -39.8, 0), V(0, 0, 1), 2), math.radians(-90), math.radians(0)),  # 17
], False)
sketch13.addConstraint([
    Sketcher.Constraint("Coincident", 0, 2, 1, 1),
    Sketcher.Constraint("Coincident", 1, 2, 2, 1),
    Sketcher.Constraint("Tangent", 2, 2, 3, 1),
    Sketcher.Constraint("Tangent", 3, 2, 4, 1),
    Sketcher.Constraint("Tangent", 4, 2, 5, 2),
    Sketcher.Constraint("Tangent", 5, 1, 6, 1),
    Sketcher.Constraint("Coincident", 6, 2, 7, 1),
    Sketcher.Constraint("Coincident", 7, 2, 8, 1),
    Sketcher.Constraint("Tangent", 8, 2, 9, 2),
    Sketcher.Constraint("Tangent", 9, 1, 10, 1),
    Sketcher.Constraint("Tangent", 10, 2, 11, 1),
    Sketcher.Constraint("Tangent", 11, 2, 12, 1),
    Sketcher.Constraint("Coincident", 12, 2, 13, 1),
    Sketcher.Constraint("Coincident", 13, 2, 14, 1),
    Sketcher.Constraint("Tangent", 14, 2, 15, 2),
    Sketcher.Constraint("Tangent", 15, 1, 16, 1),
    Sketcher.Constraint("Tangent", 16, 2, 17, 2),
    Sketcher.Constraint("Tangent", 17, 1, 0, 1),
    Sketcher.Constraint("Horizontal", 0),
    Sketcher.Constraint("Vertical", 1),
    Sketcher.Constraint("Horizontal", 2),
    Sketcher.Constraint("Vertical", 4),
    Sketcher.Constraint("Horizontal", 6),
    Sketcher.Constraint("Vertical", 7),
    Sketcher.Constraint("Horizontal", 8),
    Sketcher.Constraint("Vertical", 10),
    Sketcher.Constraint("Horizontal", 12),
    Sketcher.Constraint("Vertical", 13),
    Sketcher.Constraint("Horizontal", 14),
    Sketcher.Constraint("Vertical", 16),
    Sketcher.Constraint("Equal", 3, 5),
    Sketcher.Constraint("Equal", 5, 9),
    Sketcher.Constraint("Equal", 9, 11),
    Sketcher.Constraint("Equal", 11, 15),
    Sketcher.Constraint("Equal", 15, 17),
    Sketcher.Constraint("Vertical", 5, 3, 9, 3),
    Sketcher.Constraint("Equal", 1, 13),
    Sketcher.Constraint("Radius", 3, 2.0),
    Sketcher.Constraint("DistanceY", 1, 2, 1, 1, 1.0),
    Sketcher.Constraint("DistanceY", 7, 1, 7, 2, 2.0),
    Sketcher.Constraint("DistanceY", 10, 1, 10, 2, 53.0),
    Sketcher.Constraint("DistanceX", -1, 1, 3, 3, 33.0),
    Sketcher.Constraint("DistanceY", 5, 3, -1, 1, 19.0),
    Sketcher.Constraint("DistanceX", -1, 1, 15, 3, 32.0),
    Sketcher.Constraint("DistanceX", 0, 2, 0, 1, 1.808681),
    Sketcher.Constraint("DistanceX", 12, 2, 12, 1, 14.764649),
    Sketcher.Constraint("DistanceY", 4, 1, 4, 2, 21.84979),
    Sketcher.Constraint("DistanceX", 6, 1, 6, 2, 6.101705),
])
sketch13.setExpression("Constraints[37]", "Params.sketch13_radius")
sketch13.setExpression("Constraints[38]", "Params.sketch13_height")
sketch13.setExpression("Constraints[39]", "Params.sketch13_height2")
sketch13.setExpression("Constraints[40]", "Params.sketch13_height3")
pocket9 = body.newObject("PartDesign::Pocket", "Pocket008")
pocket9.Profile = sketch13
pocket9.setExpression("Length", "Params.pocket9_length")

# Sketch on XY plane
sketch14 = body.newObject("Sketcher::SketchObject", "Sketch013")
sketch14.AttachmentSupport = (doc.getObject("XY_Plane"), [""])
sketch14.MapMode = "FlatFace"
sketch14.AttachmentOffset = App.Placement(V(0, 0, 2), App.Rotation())
sketch14.addGeometry([
    Part.LineSegment(V(0, 0, 0), V(0, -23, 0)),  # 0
    Part.LineSegment(V(0, -23, 0), V(1, -23, 0)),  # 1
    Part.LineSegment(V(1, -23, 0), V(1, 1, 0)),  # 2
    Part.LineSegment(V(1, 1, 0), V(-26, 1, 0)),  # 3
    Part.LineSegment(V(-26, 1, 0), V(-26, -23, 0)),  # 4
    Part.LineSegment(V(-26, -23, 0), V(-25, -23, 0)),  # 5
    Part.LineSegment(V(-25, -23, 0), V(-25, 0, 0)),  # 6
    Part.LineSegment(V(-25, 0, 0), V(0, 0, 0)),  # 7
], False)
sketch14.addConstraint([
    Sketcher.Constraint("Coincident", 0, 2, 1, 1),
    Sketcher.Constraint("Coincident", 1, 2, 2, 1),
    Sketcher.Constraint("Coincident", 2, 2, 3, 1),
    Sketcher.Constraint("Coincident", 3, 2, 4, 1),
    Sketcher.Constraint("Coincident", 4, 2, 5, 1),
    Sketcher.Constraint("Coincident", 5, 2, 6, 1),
    Sketcher.Constraint("Coincident", 6, 2, 7, 1),
    Sketcher.Constraint("Coincident", 7, 2, 0, 1),
    Sketcher.Constraint("Vertical", 0),
    Sketcher.Constraint("Horizontal", 1),
    Sketcher.Constraint("Vertical", 2),
    Sketcher.Constraint("Horizontal", 3),
    Sketcher.Constraint("Vertical", 4),
    Sketcher.Constraint("Horizontal", 5),
    Sketcher.Constraint("Vertical", 6),
    Sketcher.Constraint("Horizontal", 7),
    Sketcher.Constraint("Coincident", 7, 2, -1, 1),
    Sketcher.Constraint("Horizontal", 1, 2, 4, 2),
    Sketcher.Constraint("Equal", 1, 5),
    Sketcher.Constraint("DistanceX", 1, 1, 1, 2, 1.0),
    Sketcher.Constraint("DistanceX", 3, 2, 3, 1, 27.0),
    Sketcher.Constraint("DistanceY", 0, 2, 0, 1, 23.0),
    Sketcher.Constraint("DistanceY", 2, 1, 2, 2, 24.0),
])
sketch14.setExpression("Constraints[19]", "Params.sketch14_width")
sketch14.setExpression("Constraints[20]", "Params.sketch14_width2")
sketch14.setExpression("Constraints[21]", "Params.sketch14_height")
sketch14.setExpression("Constraints[22]", "Params.sketch14_height2")
pad4 = body.newObject("PartDesign::Pad", "Pad003")
pad4.Profile = sketch14
pad4.setExpression("Length", "Params.pad4_length")

doc.recompute()
